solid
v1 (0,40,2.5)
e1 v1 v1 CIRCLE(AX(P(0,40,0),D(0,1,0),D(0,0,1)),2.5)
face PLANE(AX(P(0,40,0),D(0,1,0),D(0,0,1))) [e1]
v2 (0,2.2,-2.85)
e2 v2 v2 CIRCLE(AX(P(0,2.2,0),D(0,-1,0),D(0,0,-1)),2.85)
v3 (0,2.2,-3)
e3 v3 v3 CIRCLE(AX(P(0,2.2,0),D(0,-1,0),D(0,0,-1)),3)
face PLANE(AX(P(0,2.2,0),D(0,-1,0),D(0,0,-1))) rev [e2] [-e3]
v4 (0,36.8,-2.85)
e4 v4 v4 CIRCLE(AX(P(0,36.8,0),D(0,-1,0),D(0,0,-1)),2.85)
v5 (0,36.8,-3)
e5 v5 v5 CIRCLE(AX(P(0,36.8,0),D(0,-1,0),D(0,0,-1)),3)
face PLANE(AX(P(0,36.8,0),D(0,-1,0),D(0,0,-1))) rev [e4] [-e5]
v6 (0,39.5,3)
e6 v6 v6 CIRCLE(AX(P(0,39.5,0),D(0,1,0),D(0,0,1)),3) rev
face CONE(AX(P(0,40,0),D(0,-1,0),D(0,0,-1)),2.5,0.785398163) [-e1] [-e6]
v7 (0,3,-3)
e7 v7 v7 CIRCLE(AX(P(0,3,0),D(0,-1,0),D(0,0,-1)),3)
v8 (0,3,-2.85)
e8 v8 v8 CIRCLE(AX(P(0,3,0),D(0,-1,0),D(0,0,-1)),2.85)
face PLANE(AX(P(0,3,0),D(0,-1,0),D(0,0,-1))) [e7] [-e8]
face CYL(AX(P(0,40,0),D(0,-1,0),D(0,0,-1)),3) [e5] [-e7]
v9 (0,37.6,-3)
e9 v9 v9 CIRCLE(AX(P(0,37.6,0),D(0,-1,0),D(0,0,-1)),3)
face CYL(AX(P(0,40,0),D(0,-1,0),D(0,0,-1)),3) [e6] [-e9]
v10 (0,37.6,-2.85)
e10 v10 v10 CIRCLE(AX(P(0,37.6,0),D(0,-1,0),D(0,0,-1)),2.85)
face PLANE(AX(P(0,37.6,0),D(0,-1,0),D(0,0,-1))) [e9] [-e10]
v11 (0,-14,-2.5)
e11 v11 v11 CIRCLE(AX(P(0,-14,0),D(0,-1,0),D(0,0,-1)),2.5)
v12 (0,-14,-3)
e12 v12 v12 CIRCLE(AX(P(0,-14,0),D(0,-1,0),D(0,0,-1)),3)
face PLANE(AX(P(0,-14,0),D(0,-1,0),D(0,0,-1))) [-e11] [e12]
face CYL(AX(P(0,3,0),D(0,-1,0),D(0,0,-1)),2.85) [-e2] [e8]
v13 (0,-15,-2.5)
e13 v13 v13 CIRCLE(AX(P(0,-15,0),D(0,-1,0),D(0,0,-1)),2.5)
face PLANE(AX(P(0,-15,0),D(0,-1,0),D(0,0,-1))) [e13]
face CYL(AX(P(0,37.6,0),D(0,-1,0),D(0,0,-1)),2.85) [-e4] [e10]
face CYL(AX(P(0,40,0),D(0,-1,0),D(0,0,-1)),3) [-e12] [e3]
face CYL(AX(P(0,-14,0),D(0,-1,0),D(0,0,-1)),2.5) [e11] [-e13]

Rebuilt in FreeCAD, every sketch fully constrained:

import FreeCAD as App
import Part
import Sketcher

V = App.Vector


def edges_at(feature, points):
    """Names of the edges that pass closest to the given points."""
    edges = feature.Shape.Edges
    near = lambda p: min(range(len(edges)), key=lambda i: edges[i].distToShape(Part.Vertex(*p))[0])
    return sorted({f"Edge{near(p) + 1}" for p in points})

doc = App.newDocument("Part")
body = doc.addObject("PartDesign::Body", "Body")

sketch1 = body.newObject("Sketcher::SketchObject", "Sketch")
sketch1.AttachmentSupport = (doc.getObject("XZ_Plane"), [""])
sketch1.MapMode = "FlatFace"
sketch1.addGeometry(Part.Circle(V(0, 0, 0), V(0, 0, 1), 3), False)
sketch1.addConstraint([
    Sketcher.Constraint("Coincident", 0, 3, -1, 1),
    Sketcher.Constraint("Diameter", 0, 6.0),
])
pad1 = body.newObject("PartDesign::Pad", "Pad")
pad1.Profile = sketch1
pad1.Length = 40
pad1.Reversed = True

sketch2 = body.newObject("Sketcher::SketchObject", "Sketch001")
sketch2.AttachmentSupport = (doc.getObject("XZ_Plane"), [""])
sketch2.MapMode = "FlatFace"
sketch2.AttachmentOffset = App.Placement(V(0, 0, -36.8), App.Rotation())
sketch2.addGeometry([
    Part.Circle(V(0, 0, 0), V(0, 0, 1), 3),
    Part.Circle(V(0, 0, 0), V(0, 0, 1), 2.85),
], False)
sketch2.addConstraint([
    Sketcher.Constraint("Coincident", 0, 3, -1, 1),
    Sketcher.Constraint("Coincident", 1, 3, -1, 1),
    Sketcher.Constraint("Diameter", 0, 6.0),
    Sketcher.Constraint("Diameter", 1, 5.7),
])
pocket1 = body.newObject("PartDesign::Pocket", "Pocket")
pocket1.Profile = sketch2
pocket1.Length = 0.8

sketch3 = body.newObject("Sketcher::SketchObject", "Sketch002")
sketch3.AttachmentSupport = (doc.getObject("XZ_Plane"), [""])
sketch3.MapMode = "FlatFace"
sketch3.AttachmentOffset = App.Placement(V(0, 0, -2.2), App.Rotation())
sketch3.addGeometry([
    Part.Circle(V(0, 0, 0), V(0, 0, 1), 3),
    Part.Circle(V(0, 0, 0), V(0, 0, 1), 2.85),
], False)
sketch3.addConstraint([
    Sketcher.Constraint("Coincident", 0, 3, -1, 1),
    Sketcher.Constraint("Coincident", 1, 3, -1, 1),
    Sketcher.Constraint("Diameter", 0, 6.0),
    Sketcher.Constraint("Diameter", 1, 5.7),
])
pocket2 = body.newObject("PartDesign::Pocket", "Pocket001")
pocket2.Profile = sketch3
pocket2.Length = 0.8
doc.recompute()

chamfer = body.newObject("PartDesign::Chamfer", "Chamfer")
chamfer.Base = (pocket2, edges_at(pocket2, [(0, 40, -3)]))
chamfer.Size = 0.5

sketch4 = body.newObject("Sketcher::SketchObject", "Sketch003")
sketch4.AttachmentSupport = (doc.getObject("XZ_Plane"), [""])
sketch4.MapMode = "FlatFace"
sketch4.AttachmentOffset = App.Placement(V(0, 0, 15), App.Rotation())
sketch4.addGeometry(Part.Circle(V(0, 0, 0), V(0, 0, 1), 3), False)
sketch4.addConstraint([
    Sketcher.Constraint("Coincident", 0, 3, -1, 1),
    Sketcher.Constraint("Diameter", 0, 6.0),
])
pad2 = body.newObject("PartDesign::Pad", "Pad001")
pad2.Profile = sketch4
pad2.Length = 15
pad2.Reversed = True

sketch5 = body.newObject("Sketcher::SketchObject", "Sketch004")
sketch5.AttachmentSupport = (doc.getObject("XZ_Plane"), [""])
sketch5.MapMode = "FlatFace"
sketch5.AttachmentOffset = App.Placement(V(0, 0, 15), App.Rotation())
sketch5.addGeometry([
    Part.Circle(V(0, 0, 0), V(0, 0, 1), 3),
    Part.Circle(V(0, 0, 0), V(0, 0, 1), 2.5),
], False)
sketch5.addConstraint([
    Sketcher.Constraint("Coincident", 0, 3, -1, 1),
    Sketcher.Constraint("Coincident", 1, 3, -1, 1),
    Sketcher.Constraint("Diameter", 0, 6.0),
    Sketcher.Constraint("Diameter", 1, 5.0),
])
pocket3 = body.newObject("PartDesign::Pocket", "Pocket002")
pocket3.Profile = sketch5
pocket3.Length = 1

doc.recompute()
